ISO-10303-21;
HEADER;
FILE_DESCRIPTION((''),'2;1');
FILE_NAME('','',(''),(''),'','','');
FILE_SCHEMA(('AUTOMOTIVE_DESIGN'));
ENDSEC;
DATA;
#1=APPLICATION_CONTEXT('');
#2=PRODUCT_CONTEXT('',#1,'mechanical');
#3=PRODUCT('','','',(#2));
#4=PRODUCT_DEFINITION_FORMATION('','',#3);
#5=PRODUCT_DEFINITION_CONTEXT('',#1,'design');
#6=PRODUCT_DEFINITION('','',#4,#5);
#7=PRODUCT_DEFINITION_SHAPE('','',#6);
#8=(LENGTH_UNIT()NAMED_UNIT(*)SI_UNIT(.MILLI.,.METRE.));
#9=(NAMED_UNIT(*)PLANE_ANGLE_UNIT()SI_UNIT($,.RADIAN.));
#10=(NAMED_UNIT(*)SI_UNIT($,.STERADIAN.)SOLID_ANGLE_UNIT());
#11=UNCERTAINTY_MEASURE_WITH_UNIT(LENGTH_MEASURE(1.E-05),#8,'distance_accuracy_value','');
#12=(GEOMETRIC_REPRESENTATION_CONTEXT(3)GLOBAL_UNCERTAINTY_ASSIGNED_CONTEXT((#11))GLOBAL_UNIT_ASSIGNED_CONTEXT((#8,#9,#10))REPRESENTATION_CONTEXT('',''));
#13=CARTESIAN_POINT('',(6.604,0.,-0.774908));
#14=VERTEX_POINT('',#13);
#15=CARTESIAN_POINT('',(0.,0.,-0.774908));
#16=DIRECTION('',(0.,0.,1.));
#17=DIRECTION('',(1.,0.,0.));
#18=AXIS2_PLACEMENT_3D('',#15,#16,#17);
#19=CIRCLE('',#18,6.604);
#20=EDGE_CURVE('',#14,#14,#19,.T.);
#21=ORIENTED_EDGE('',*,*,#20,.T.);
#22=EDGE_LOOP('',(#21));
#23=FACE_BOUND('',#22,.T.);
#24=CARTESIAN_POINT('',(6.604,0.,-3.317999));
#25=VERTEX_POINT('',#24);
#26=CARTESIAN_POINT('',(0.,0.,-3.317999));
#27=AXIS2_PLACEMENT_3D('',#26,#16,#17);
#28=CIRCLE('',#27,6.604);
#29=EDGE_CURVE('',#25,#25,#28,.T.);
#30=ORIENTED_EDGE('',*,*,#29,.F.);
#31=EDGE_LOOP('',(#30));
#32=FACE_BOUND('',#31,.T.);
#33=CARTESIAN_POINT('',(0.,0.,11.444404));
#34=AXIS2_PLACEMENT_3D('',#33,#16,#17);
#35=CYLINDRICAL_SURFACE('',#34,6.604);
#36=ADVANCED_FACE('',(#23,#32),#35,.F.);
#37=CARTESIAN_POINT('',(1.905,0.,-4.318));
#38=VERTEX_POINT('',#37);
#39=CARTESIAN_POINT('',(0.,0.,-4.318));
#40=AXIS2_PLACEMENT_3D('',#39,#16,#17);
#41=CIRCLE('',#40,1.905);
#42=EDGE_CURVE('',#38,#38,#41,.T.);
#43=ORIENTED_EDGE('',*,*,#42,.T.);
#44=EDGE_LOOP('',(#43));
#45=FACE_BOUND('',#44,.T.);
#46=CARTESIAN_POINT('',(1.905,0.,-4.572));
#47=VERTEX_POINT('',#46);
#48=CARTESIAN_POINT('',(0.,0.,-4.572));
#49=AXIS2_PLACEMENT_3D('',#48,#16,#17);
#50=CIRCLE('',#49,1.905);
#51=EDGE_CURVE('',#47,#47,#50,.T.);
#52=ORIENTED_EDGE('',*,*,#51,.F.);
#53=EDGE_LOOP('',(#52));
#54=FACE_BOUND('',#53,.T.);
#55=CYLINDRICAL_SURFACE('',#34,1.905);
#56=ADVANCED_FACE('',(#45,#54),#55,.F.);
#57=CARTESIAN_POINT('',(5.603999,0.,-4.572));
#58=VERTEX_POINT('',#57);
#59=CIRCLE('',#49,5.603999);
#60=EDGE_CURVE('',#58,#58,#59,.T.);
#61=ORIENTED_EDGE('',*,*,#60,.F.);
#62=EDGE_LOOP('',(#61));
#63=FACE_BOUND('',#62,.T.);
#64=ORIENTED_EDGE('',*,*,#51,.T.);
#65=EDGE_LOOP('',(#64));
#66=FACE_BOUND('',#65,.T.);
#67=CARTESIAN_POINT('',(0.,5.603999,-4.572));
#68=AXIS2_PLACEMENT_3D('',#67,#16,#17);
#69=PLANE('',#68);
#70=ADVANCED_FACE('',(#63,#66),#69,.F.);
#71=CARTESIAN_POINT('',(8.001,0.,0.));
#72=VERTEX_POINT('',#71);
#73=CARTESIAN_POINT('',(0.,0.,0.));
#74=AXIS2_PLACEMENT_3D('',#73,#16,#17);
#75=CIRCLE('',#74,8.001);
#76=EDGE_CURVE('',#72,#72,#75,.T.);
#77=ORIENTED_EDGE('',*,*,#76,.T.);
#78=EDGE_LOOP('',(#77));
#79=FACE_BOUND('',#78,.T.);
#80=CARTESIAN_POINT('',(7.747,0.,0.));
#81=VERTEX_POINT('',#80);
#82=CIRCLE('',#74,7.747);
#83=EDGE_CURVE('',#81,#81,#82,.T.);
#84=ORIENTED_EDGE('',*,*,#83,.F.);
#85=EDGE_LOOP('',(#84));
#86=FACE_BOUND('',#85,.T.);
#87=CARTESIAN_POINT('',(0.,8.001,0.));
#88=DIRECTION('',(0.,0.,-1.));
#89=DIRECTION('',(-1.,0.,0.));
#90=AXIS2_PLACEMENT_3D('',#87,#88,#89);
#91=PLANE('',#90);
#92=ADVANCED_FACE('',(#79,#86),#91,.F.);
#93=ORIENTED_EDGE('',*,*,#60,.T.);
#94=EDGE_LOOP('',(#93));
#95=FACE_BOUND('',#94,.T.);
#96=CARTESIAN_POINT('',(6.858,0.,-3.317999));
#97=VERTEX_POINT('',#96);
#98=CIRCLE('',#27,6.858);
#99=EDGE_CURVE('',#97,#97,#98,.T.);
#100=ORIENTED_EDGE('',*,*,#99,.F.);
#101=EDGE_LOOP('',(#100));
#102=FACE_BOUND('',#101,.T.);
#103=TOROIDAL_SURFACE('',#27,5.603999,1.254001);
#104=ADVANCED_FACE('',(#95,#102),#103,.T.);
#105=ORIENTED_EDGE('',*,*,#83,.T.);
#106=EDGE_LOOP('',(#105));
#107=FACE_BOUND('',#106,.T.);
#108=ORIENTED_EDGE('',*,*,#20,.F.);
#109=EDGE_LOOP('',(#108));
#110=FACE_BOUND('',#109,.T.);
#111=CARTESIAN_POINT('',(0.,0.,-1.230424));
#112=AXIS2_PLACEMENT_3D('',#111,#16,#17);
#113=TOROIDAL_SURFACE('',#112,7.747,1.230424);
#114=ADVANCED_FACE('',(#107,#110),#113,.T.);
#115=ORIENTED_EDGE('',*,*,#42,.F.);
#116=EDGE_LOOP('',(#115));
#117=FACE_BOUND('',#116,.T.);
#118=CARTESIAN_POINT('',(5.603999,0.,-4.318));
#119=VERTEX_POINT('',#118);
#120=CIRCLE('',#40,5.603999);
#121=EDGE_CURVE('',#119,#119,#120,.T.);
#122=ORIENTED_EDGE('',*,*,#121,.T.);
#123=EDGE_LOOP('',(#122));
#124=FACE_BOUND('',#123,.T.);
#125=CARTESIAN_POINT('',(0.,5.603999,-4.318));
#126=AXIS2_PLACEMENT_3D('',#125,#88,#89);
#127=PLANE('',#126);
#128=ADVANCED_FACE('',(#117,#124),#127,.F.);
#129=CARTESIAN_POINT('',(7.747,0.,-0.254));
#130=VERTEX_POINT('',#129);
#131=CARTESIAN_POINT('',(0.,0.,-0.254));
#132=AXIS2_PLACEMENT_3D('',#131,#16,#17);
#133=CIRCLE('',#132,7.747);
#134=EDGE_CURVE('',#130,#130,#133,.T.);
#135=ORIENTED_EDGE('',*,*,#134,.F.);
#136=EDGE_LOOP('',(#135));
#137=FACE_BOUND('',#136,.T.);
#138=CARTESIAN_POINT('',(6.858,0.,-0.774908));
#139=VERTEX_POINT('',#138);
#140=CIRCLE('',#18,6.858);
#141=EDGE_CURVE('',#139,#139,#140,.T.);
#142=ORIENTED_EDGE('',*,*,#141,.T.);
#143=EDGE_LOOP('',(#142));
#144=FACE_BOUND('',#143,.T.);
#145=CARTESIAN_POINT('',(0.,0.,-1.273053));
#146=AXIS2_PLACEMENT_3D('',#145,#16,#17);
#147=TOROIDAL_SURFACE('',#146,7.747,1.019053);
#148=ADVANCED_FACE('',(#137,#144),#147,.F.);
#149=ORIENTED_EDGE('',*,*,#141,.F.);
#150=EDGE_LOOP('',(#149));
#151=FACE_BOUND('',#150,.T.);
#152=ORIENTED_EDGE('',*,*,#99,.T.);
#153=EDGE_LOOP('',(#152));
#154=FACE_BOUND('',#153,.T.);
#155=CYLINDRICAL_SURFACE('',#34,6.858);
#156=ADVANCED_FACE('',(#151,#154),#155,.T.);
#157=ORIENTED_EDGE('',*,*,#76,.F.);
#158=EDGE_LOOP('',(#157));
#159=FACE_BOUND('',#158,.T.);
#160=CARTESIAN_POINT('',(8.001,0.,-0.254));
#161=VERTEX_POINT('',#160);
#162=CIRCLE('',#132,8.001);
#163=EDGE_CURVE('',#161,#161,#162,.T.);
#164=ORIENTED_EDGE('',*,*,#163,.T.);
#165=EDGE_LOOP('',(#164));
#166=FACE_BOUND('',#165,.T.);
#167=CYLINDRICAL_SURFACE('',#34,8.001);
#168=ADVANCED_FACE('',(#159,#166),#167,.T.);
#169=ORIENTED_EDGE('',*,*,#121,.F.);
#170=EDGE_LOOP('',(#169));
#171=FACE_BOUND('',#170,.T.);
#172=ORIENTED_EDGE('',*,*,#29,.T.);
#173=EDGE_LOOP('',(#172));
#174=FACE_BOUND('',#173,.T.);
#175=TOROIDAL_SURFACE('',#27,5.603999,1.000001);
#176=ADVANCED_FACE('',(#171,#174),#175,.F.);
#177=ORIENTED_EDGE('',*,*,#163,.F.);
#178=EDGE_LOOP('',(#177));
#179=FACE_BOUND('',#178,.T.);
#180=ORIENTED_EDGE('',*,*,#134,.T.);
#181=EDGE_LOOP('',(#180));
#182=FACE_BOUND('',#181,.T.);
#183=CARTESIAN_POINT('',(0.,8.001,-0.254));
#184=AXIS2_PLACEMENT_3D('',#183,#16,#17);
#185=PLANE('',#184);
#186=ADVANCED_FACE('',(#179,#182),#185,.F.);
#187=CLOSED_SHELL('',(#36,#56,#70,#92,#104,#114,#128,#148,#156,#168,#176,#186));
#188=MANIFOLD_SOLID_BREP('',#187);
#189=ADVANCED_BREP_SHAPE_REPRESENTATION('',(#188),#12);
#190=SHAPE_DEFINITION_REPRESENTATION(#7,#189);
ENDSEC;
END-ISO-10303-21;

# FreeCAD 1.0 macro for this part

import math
import FreeCAD as App
import Part
import Sketcher

V = App.Vector
Q = App.Units.Quantity

doc = App.newDocument("Part")
body = doc.addObject("PartDesign::Body", "Body")

# Sketch on YZ plane
sketch1 = doc.addObject("Sketcher::SketchObject", "Sketch")
body.addObject(sketch1)
sketch1.AttachmentSupport = (doc.YZ_Plane, [""])
sketch1.MapMode = "FlatFace"
sketch1.addGeometry([
    Part.LineSegment(V(8, 0, 0), V(7.75, 0, 0)),  # 0
    Part.ArcOfCircle(Part.Circle(V(7.75, -1.23, 0), V(0, 0, 1), 1.23), math.radians(90), math.radians(158)),  # 1
    Part.LineSegment(V(6.6, -0.77, 0), V(6.6, -3.32, 0)),  # 2
    Part.ArcOfCircle(Part.Circle(V(5.6, -3.32, 0), V(0, 0, 1), 1), math.radians(-90), math.radians(0)),  # 3
    Part.LineSegment(V(5.6, -4.32, 0), V(1.91, -4.32, 0)),  # 4
    Part.LineSegment(V(1.91, -4.32, 0), V(1.91, -4.57, 0)),  # 5
    Part.LineSegment(V(1.91, -4.57, 0), V(5.6, -4.57, 0)),  # 6
    Part.ArcOfCircle(Part.Circle(V(5.6, -3.32, 0), V(0, 0, 1), 1.25), math.radians(-90), math.radians(0)),  # 7
    Part.LineSegment(V(6.86, -3.32, 0), V(6.86, -0.77, 0)),  # 8
    Part.ArcOfCircle(Part.Circle(V(7.75, -1.27, 0), V(0, 0, 1), 1.02), math.radians(90), math.radians(151)),  # 9
    Part.LineSegment(V(7.75, -0.25, 0), V(8, -0.25, 0)),  # 10
    Part.LineSegment(V(8, -0.25, 0), V(8, 0, 0)),  # 11
], False)
sketch1.addConstraint([
    Sketcher.Constraint("Tangent", 0, 2, 1, 1),
    Sketcher.Constraint("Coincident", 1, 2, 2, 1),
    Sketcher.Constraint("Tangent", 2, 2, 3, 2),
    Sketcher.Constraint("Tangent", 3, 1, 4, 1),
    Sketcher.Constraint("Coincident", 4, 2, 5, 1),
    Sketcher.Constraint("Coincident", 5, 2, 6, 1),
    Sketcher.Constraint("Tangent", 6, 2, 7, 1),
    Sketcher.Constraint("Tangent", 7, 2, 8, 1),
    Sketcher.Constraint("Coincident", 8, 2, 9, 2),
    Sketcher.Constraint("Tangent", 9, 1, 10, 1),
    Sketcher.Constraint("Coincident", 10, 2, 11, 1),
    Sketcher.Constraint("Coincident", 11, 2, 0, 1),
    Sketcher.Constraint("Horizontal", 0),
    Sketcher.Constraint("Vertical", 2),
    Sketcher.Constraint("Horizontal", 4),
    Sketcher.Constraint("Vertical", 5),
    Sketcher.Constraint("Horizontal", 6),
    Sketcher.Constraint("Vertical", 8),
    Sketcher.Constraint("Horizontal", 10),
    Sketcher.Constraint("Vertical", 11),
    Sketcher.Constraint("Coincident", 7, 3, 3, 3),
    Sketcher.Constraint("PointOnObject", 0, 2, -1),
    Sketcher.Constraint("Horizontal", 1, 2, 8, 2),
    Sketcher.Constraint("Vertical", 1, 3, 9, 3),
    Sketcher.Constraint("Equal", 10, 5),
    Sketcher.Constraint("Equal", 5, 11),
    Sketcher.Constraint("Radius", 3, Q("1.000001 mm")),
    Sketcher.Constraint("Radius", 7, Q("1.254001 mm")),
    Sketcher.Constraint("DistanceX", 4, 2, 4, 1, Q("3.698999 mm")),
    Sketcher.Constraint("DistanceX", -1, 1, 1, 3, Q("7.747 mm")),
    Sketcher.Constraint("DistanceX", -1, 1, 3, 3, Q("5.603999 mm")),
    Sketcher.Constraint("DistanceY", 3, 3, -1, 1, Q("3.317999 mm")),
    Sketcher.Constraint("Radius", 1, Q("1.230424 mm")),
])
revolution = doc.addObject("PartDesign::Revolution", "Revolution")
body.addObject(revolution)
revolution.Profile = sketch1
revolution.ReferenceAxis = (sketch1, ["V_Axis"])
revolution.Angle = 360

doc.recompute()
